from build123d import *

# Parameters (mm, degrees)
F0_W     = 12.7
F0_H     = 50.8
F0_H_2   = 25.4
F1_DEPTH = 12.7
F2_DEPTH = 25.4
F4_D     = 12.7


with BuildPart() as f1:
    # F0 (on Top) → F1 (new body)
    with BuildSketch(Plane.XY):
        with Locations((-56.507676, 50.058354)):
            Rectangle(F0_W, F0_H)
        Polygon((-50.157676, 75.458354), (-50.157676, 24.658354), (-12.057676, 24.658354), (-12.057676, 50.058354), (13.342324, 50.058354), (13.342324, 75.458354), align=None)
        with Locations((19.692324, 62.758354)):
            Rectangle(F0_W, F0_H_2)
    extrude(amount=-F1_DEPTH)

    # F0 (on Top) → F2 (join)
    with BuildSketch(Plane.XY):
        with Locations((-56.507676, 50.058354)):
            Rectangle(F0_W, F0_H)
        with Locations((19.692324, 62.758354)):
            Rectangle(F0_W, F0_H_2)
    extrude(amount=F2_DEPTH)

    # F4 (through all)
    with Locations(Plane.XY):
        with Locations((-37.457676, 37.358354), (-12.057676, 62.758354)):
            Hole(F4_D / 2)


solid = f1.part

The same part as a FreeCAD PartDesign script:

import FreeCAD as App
import Part
import Sketcher
Q = App.Units.Quantity


def add_polygon(sketch, points):
    """Adds a closed chain of lines whose ends are joined by coincident constraints."""
    first, n = sketch.GeometryCount, len(points)
    for a, b in zip(points, points[1:] + points[:1]):
        sketch.addGeometry(Part.LineSegment(App.Vector(*a, 0), App.Vector(*b, 0)), False)
    for i in range(n):
        sketch.addConstraint(Sketcher.Constraint("Coincident", first + i, 2, first + (i + 1) % n, 1))

doc = App.newDocument("Part")
body = doc.addObject("PartDesign::Body", "Body")

sketch1 = body.newObject("Sketcher::SketchObject", "Sketch")
sketch1.AttachmentSupport = (doc.getObject("XY_Plane"), [""])
sketch1.MapMode = "FlatFace"
add_polygon(sketch1, [(-62.857676, 75.458354), (-62.857676, 24.658354), (-12.057676, 24.658354), (-12.057676, 50.058354), (26.042324, 50.058354), (26.042324, 75.458354)])
sketch1.addConstraint([
    Sketcher.Constraint("Vertical", 0),
    Sketcher.Constraint("Horizontal", 1),
    Sketcher.Constraint("Vertical", 2),
    Sketcher.Constraint("Horizontal", 3),
    Sketcher.Constraint("Vertical", 4),
    Sketcher.Constraint("Horizontal", 5),
    Sketcher.Constraint("Equal", 1, 0),
    Sketcher.Constraint("Equal", 2, 4),
    Sketcher.Constraint("DistanceX", 1, 1, 1, 2, Q("2 in")),
    Sketcher.Constraint("DistanceX", 3, 1, 3, 2, Q("1.5 in")),
    Sketcher.Constraint("DistanceX", 0, 2, -1, 1, 62.857676),
    Sketcher.Constraint("DistanceY", -1, 1, 0, 2, 24.658354),
])
pad1 = body.newObject("PartDesign::Pad", "Pad")
pad1.Profile = sketch1
pad1.Length = Q("0.5 in")
pad1.Reversed = True

sketch2 = body.newObject("Sketcher::SketchObject", "Sketch001")
sketch2.AttachmentSupport = (doc.getObject("XY_Plane"), [""])
sketch2.MapMode = "FlatFace"
add_polygon(sketch2, [(-62.857676, 75.458354), (-62.857676, 24.658354), (-50.157676, 24.658354), (-50.157676, 75.458354)])
add_polygon(sketch2, [(13.342324, 75.458354), (13.342324, 50.058354), (26.042324, 50.058354), (26.042324, 75.458354)])
sketch2.addConstraint([
    Sketcher.Constraint("Vertical", 0),
    Sketcher.Constraint("Horizontal", 1),
    Sketcher.Constraint("Vertical", 2),
    Sketcher.Constraint("Horizontal", 3),
    Sketcher.Constraint("Vertical", 4),
    Sketcher.Constraint("Horizontal", 5),
    Sketcher.Constraint("Vertical", 6),
    Sketcher.Constraint("Horizontal", 7),
    Sketcher.Constraint("Horizontal", 3, 2, 6, 2),
    Sketcher.Constraint("Equal", 3, 5),
    Sketcher.Constraint("DistanceY", 0, 2, 0, 1, Q("2 in")),
    Sketcher.Constraint("DistanceY", 4, 2, 4, 1, Q("1 in")),
    Sketcher.Constraint("DistanceX", 1, 1, 1, 2, Q("0.5 in")),
    Sketcher.Constraint("DistanceX", 0, 2, 4, 2, Q("3 in")),
    Sketcher.Constraint("DistanceX", 0, 2, -1, 1, 62.857676),
    Sketcher.Constraint("DistanceY", -1, 1, 0, 2, 24.658354),
])
pad2 = body.newObject("PartDesign::Pad", "Pad001")
pad2.Profile = sketch2
pad2.Length = Q("1 in")

sketch3 = body.newObject("Sketcher::SketchObject", "Sketch002")
sketch3.AttachmentSupport = (doc.getObject("XY_Plane"), [""])
sketch3.MapMode = "FlatFace"
sketch3.addGeometry([
    Part.Circle(App.Vector(-37.457676, 37.358354, 0), App.Vector(0, 0, 1), 6.35),
    Part.Circle(App.Vector(-12.057676, 62.758354, 0), App.Vector(0, 0, 1), 6.35),
], False)
sketch3.addConstraint([
    Sketcher.Constraint("Equal", 0, 1),
    Sketcher.Constraint("Diameter", 0, Q("0.5 in")),
    Sketcher.Constraint("DistanceX", 0, 3, 1, 3, Q("1 in")),
    Sketcher.Constraint("DistanceY", 0, 3, 1, 3, Q("1 in")),
    Sketcher.Constraint("DistanceX", 0, 3, -1, 1, 37.457676),
    Sketcher.Constraint("DistanceY", -1, 1, 0, 3, 37.358354),
])
doc.recompute()
hole = body.newObject("PartDesign::Hole", "Hole")
hole.Profile = sketch3
hole.ThreadType = "None"
hole.Diameter = Q("0.5 in")
hole.DepthType = "ThroughAll"

doc.recompute()
